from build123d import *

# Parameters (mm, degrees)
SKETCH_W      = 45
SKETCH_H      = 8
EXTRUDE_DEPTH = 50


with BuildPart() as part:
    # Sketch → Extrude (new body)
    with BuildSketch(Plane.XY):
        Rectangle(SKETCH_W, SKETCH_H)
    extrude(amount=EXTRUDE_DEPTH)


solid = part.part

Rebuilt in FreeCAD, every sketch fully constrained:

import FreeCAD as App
import Part
import Sketcher

doc = App.newDocument("Part")
body = doc.addObject("PartDesign::Body", "Body")

# Sketch on XY plane
sketch1 = body.newObject("Sketcher::SketchObject", "Sketch")
sketch1.AttachmentSupport = (doc.getObject("XY_Plane"), [""])
sketch1.MapMode = "FlatFace"
sketch1.addGeometry(Part.LineSegment(App.Vector(-22, 4, 0), App.Vector(-22, -4, 0)), False)
sketch1.addGeometry(Part.LineSegment(App.Vector(-22, -4, 0), App.Vector(22, -4, 0)), False)
sketch1.addGeometry(Part.LineSegment(App.Vector(22, -4, 0), App.Vector(22, 4, 0)), False)
sketch1.addGeometry(Part.LineSegment(App.Vector(22, 4, 0), App.Vector(-22, 4, 0)), False)
sketch1.addConstraint(Sketcher.Constraint("Coincident", 0, 2, 1, 1))
sketch1.addConstraint(Sketcher.Constraint("Coincident", 1, 2, 2, 1))
sketch1.addConstraint(Sketcher.Constraint("Coincident", 2, 2, 3, 1))
sketch1.addConstraint(Sketcher.Constraint("Coincident", 3, 2, 0, 1))
sketch1.addConstraint(Sketcher.Constraint("Vertical", 0))
sketch1.addConstraint(Sketcher.Constraint("Horizontal", 1))
sketch1.addConstraint(Sketcher.Constraint("Vertical", 2))
sketch1.addConstraint(Sketcher.Constraint("Horizontal", 3))
sketch1.addConstraint(Sketcher.Constraint("Symmetric", 0, 2, 2, 2, -1, 1))
sketch1.addConstraint(Sketcher.Constraint("DistanceX", 1, 1, 1, 2, 45.0))
sketch1.addConstraint(Sketcher.Constraint("DistanceY", 0, 2, 0, 1, 8.0))
pad1 = body.newObject("PartDesign::Pad", "Pad")
pad1.Profile = sketch1
pad1.Length = 50

doc.recompute()
